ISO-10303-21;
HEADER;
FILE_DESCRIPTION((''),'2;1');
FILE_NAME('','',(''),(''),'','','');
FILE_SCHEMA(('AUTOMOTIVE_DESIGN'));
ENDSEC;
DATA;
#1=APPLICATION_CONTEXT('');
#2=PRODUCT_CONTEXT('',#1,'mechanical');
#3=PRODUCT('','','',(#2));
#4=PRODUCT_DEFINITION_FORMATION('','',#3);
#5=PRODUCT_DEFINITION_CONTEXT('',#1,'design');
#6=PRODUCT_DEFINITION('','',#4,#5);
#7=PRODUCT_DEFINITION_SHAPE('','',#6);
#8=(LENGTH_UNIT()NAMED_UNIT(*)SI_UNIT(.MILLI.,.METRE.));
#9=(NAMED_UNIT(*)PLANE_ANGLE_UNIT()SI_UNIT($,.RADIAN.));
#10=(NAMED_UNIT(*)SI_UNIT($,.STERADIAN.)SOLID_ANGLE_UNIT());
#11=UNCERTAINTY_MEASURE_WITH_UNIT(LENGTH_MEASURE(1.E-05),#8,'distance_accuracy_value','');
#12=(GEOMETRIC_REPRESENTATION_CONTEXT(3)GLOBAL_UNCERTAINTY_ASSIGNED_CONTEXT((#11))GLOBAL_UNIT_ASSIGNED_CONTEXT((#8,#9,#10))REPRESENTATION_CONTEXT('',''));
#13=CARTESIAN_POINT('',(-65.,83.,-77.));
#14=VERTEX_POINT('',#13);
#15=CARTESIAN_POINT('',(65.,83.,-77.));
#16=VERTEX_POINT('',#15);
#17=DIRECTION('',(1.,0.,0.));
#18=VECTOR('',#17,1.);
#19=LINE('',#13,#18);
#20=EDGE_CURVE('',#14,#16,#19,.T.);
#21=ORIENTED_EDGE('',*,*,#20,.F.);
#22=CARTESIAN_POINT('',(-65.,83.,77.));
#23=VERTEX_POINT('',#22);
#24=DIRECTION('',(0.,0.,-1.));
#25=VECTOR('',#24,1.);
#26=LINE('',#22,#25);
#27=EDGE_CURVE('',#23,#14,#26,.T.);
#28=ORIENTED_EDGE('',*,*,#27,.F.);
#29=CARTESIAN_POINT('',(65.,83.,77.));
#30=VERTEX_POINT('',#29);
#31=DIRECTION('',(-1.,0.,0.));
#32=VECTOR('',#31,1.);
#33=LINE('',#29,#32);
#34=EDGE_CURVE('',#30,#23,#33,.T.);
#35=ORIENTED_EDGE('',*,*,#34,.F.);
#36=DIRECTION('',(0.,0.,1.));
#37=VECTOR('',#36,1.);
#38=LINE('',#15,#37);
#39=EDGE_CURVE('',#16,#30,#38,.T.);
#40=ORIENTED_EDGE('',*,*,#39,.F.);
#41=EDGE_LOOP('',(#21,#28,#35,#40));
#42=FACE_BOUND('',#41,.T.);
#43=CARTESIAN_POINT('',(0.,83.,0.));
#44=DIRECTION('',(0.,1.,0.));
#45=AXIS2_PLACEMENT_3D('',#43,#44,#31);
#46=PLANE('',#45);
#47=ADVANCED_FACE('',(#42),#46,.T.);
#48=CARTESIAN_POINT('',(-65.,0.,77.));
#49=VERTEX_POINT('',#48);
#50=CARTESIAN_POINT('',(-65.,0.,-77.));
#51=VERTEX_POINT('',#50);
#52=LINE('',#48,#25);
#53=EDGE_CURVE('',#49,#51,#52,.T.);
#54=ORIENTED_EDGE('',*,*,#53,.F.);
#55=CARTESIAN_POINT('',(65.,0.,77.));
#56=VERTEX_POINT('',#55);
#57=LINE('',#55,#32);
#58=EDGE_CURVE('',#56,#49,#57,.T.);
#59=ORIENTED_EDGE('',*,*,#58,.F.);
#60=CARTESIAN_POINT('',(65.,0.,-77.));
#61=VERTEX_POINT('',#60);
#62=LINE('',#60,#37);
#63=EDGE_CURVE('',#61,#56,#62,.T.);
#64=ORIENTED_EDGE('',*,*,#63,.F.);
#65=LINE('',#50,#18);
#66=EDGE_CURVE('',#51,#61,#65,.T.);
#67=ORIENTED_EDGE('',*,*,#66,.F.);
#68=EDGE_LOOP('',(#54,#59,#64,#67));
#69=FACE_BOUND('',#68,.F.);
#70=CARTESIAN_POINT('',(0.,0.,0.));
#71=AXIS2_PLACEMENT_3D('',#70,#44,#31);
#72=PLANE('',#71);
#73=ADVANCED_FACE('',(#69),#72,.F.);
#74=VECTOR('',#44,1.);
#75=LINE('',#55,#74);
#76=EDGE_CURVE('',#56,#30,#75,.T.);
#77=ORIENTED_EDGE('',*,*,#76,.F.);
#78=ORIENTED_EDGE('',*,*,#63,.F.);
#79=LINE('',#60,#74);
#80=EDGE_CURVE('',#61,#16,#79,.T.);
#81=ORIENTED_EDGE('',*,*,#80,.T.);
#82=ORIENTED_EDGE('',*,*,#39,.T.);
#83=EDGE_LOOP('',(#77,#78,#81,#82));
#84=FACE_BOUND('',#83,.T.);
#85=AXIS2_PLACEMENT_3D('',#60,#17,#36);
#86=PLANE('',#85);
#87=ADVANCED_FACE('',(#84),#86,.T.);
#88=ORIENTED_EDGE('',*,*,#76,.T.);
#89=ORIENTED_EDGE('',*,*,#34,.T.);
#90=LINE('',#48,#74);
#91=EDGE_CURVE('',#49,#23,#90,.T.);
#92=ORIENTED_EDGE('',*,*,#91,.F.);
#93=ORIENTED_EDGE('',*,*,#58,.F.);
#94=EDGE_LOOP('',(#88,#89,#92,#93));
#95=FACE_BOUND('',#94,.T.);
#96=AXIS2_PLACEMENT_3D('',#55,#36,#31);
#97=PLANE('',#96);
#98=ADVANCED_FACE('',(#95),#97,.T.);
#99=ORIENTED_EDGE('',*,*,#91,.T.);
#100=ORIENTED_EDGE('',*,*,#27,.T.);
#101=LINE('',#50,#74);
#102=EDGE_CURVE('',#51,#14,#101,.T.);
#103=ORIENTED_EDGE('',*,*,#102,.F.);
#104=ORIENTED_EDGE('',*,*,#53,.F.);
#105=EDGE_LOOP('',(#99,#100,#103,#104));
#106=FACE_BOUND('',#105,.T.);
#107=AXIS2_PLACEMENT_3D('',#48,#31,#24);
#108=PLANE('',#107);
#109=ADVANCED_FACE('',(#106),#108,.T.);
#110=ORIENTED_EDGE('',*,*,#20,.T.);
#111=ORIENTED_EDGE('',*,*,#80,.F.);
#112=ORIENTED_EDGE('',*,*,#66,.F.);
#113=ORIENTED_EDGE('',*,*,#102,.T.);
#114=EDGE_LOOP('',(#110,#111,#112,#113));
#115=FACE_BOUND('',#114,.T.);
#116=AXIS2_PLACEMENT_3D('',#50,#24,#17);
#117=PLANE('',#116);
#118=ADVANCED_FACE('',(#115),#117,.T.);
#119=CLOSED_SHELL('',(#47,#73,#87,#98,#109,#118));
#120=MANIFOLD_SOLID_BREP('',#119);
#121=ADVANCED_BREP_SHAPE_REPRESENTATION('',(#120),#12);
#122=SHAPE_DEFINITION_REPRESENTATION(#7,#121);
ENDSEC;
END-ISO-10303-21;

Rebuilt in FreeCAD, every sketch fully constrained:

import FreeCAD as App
import Part
import Sketcher

doc = App.newDocument("Part")
body = doc.addObject("PartDesign::Body", "Body")

# Sketch on XZ plane
sketch1 = body.newObject("Sketcher::SketchObject", "Sketch")
sketch1.AttachmentSupport = (doc.getObject("XZ_Plane"), [""])
sketch1.MapMode = "FlatFace"
sketch1.addGeometry(Part.LineSegment(App.Vector(-65, 77, 0), App.Vector(65, 77, 0)), False)
sketch1.addGeometry(Part.LineSegment(App.Vector(65, 77, 0), App.Vector(65, -77, 0)), False)
sketch1.addGeometry(Part.LineSegment(App.Vector(65, -77, 0), App.Vector(-65, -77, 0)), False)
sketch1.addGeometry(Part.LineSegment(App.Vector(-65, -77, 0), App.Vector(-65, 77, 0)), False)
sketch1.addConstraint(Sketcher.Constraint("Coincident", 0, 2, 1, 1))
sketch1.addConstraint(Sketcher.Constraint("Coincident", 1, 2, 2, 1))
sketch1.addConstraint(Sketcher.Constraint("Coincident", 2, 2, 3, 1))
sketch1.addConstraint(Sketcher.Constraint("Coincident", 3, 2, 0, 1))
sketch1.addConstraint(Sketcher.Constraint("Horizontal", 0))
sketch1.addConstraint(Sketcher.Constraint("Vertical", 1))
sketch1.addConstraint(Sketcher.Constraint("Horizontal", 2))
sketch1.addConstraint(Sketcher.Constraint("Vertical", 3))
sketch1.addConstraint(Sketcher.Constraint("Symmetric", 0, 2, 2, 2, -1, 1))
sketch1.addConstraint(Sketcher.Constraint("DistanceX", 0, 1, 0, 2, 130.0))
sketch1.addConstraint(Sketcher.Constraint("DistanceY", 1, 2, 1, 1, 154.0))
pad1 = body.newObject("PartDesign::Pad", "Pad")
pad1.Profile = sketch1
pad1.Length = 83
pad1.Reversed = True

doc.recompute()
